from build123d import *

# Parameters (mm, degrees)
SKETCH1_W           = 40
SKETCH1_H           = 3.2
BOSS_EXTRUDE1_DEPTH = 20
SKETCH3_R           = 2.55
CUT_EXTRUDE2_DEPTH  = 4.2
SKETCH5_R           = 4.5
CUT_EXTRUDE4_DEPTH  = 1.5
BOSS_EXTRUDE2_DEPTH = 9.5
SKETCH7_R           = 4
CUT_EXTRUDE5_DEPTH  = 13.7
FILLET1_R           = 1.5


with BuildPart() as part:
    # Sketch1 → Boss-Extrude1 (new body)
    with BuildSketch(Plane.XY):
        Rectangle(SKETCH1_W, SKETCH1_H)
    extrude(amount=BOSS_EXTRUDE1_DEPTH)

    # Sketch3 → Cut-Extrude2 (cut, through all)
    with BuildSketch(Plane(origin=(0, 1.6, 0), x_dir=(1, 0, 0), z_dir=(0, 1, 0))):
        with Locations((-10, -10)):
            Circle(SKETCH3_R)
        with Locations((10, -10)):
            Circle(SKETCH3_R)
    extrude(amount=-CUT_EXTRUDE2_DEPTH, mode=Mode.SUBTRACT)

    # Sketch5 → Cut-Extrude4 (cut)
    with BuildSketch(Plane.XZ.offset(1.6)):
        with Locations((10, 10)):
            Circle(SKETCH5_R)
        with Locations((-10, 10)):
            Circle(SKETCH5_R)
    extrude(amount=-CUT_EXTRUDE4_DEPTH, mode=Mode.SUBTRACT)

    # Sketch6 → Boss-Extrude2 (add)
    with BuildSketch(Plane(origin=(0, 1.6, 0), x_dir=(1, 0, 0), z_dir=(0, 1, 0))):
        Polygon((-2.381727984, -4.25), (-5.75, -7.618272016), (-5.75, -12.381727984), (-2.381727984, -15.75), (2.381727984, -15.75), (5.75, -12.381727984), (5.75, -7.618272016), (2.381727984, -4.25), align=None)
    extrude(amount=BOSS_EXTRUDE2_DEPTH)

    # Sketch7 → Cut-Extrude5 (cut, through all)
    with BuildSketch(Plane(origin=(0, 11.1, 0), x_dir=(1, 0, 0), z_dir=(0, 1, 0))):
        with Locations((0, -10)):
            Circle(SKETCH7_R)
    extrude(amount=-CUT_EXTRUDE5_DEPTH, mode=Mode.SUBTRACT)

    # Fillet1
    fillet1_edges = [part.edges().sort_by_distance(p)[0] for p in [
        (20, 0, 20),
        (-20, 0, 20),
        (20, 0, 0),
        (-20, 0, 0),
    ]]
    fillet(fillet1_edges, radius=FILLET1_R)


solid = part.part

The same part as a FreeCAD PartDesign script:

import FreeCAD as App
import Part
import Sketcher

V = App.Vector


def edges_at(feature, points):
    """Names of the edges that pass closest to the given points."""
    edges = feature.Shape.Edges
    near = lambda p: min(range(len(edges)), key=lambda i: edges[i].distToShape(Part.Vertex(*p))[0])
    return sorted({f"Edge{near(p) + 1}" for p in points})


def add_polygon(sketch, points):
    """Adds a closed chain of lines whose ends are joined by coincident constraints."""
    first, n = sketch.GeometryCount, len(points)
    for a, b in zip(points, points[1:] + points[:1]):
        sketch.addGeometry(Part.LineSegment(App.Vector(*a, 0), App.Vector(*b, 0)), False)
    for i in range(n):
        sketch.addConstraint(Sketcher.Constraint("Coincident", first + i, 2, first + (i + 1) % n, 1))

doc = App.newDocument("Part")
body = doc.addObject("PartDesign::Body", "Body")

# Sketch on XY plane
sketch1 = body.newObject("Sketcher::SketchObject", "Sketch")
sketch1.AttachmentSupport = (doc.getObject("XY_Plane"), [""])
sketch1.MapMode = "FlatFace"
add_polygon(sketch1, [(-20, 1.6), (-20, -1.6), (20, -1.6), (20, 1.6)])  # lines 0-3
sketch1.addConstraint([
    Sketcher.Constraint("Vertical", 0),
    Sketcher.Constraint("Horizontal", 1),
    Sketcher.Constraint("Vertical", 2),
    Sketcher.Constraint("Horizontal", 3),
    Sketcher.Constraint("Symmetric", 0, 2, 2, 2, -1, 1),
    Sketcher.Constraint("DistanceX", 1, 1, 1, 2, 40.0),
    Sketcher.Constraint("DistanceY", 0, 2, 0, 1, 3.2),
])
pad1 = body.newObject("PartDesign::Pad", "Pad")
pad1.Profile = sketch1
pad1.Length = 20

# Sketch on XZ plane
sketch2 = body.newObject("Sketcher::SketchObject", "Sketch001")
sketch2.AttachmentSupport = (doc.getObject("XZ_Plane"), [""])
sketch2.MapMode = "FlatFace"
sketch2.AttachmentOffset = App.Placement(V(0, 0, -1.6), App.Rotation())
sketch2.addGeometry([
    Part.Circle(V(-10, 10, 0), V(0, 0, 1), 2.5),
    Part.Circle(V(10, 10, 0), V(0, 0, 1), 2.5),
], False)
sketch2.addConstraint([
    Sketcher.Constraint("Equal", 0, 1),
    Sketcher.Constraint("Symmetric", 0, 3, 1, 3, -2),
    Sketcher.Constraint("Diameter", 0, 5.1),
    Sketcher.Constraint("DistanceX", 0, 3, -1, 1, 10.0),
    Sketcher.Constraint("DistanceY", -1, 1, 0, 3, 10.0),
])
pocket1 = body.newObject("PartDesign::Pocket", "Pocket")
pocket1.Profile = sketch2
pocket1.Type = "ThroughAll"
pocket1.Reversed = True

# Sketch on XZ plane
sketch3 = body.newObject("Sketcher::SketchObject", "Sketch002")
sketch3.AttachmentSupport = (doc.getObject("XZ_Plane"), [""])
sketch3.MapMode = "FlatFace"
sketch3.AttachmentOffset = App.Placement(V(0, 0, 1.6), App.Rotation())
sketch3.addGeometry([
    Part.Circle(V(10, 10, 0), V(0, 0, 1), 4.5),
    Part.Circle(V(-10, 10, 0), V(0, 0, 1), 4.5),
], False)
sketch3.addConstraint([
    Sketcher.Constraint("Equal", 0, 1),
    Sketcher.Constraint("Symmetric", 0, 3, 1, 3, -2),
    Sketcher.Constraint("Diameter", 0, 9.0),
    Sketcher.Constraint("DistanceX", -1, 1, 0, 3, 10.0),
    Sketcher.Constraint("DistanceY", -1, 1, 0, 3, 10.0),
])
pocket2 = body.newObject("PartDesign::Pocket", "Pocket001")
pocket2.Profile = sketch3
pocket2.Length = 1.5

# Sketch on XZ plane
sketch4 = body.newObject("Sketcher::SketchObject", "Sketch003")
sketch4.AttachmentSupport = (doc.getObject("XZ_Plane"), [""])
sketch4.MapMode = "FlatFace"
sketch4.AttachmentOffset = App.Placement(V(0, 0, -1.6), App.Rotation())
add_polygon(sketch4, [(-2.4, 4.2), (-5.8, 7.6), (-5.8, 12.4), (-2.4, 15.8), (2.4, 15.8), (5.8, 12.4), (5.8, 7.6), (2.4, 4.2)])  # lines 0-7
sketch4.addConstraint([
    Sketcher.Constraint("Vertical", 1),
    Sketcher.Constraint("Horizontal", 3),
    Sketcher.Constraint("Vertical", 5),
    Sketcher.Constraint("Horizontal", 7),
    Sketcher.Constraint("Symmetric", 1, 2, 4, 2, -2),
    Sketcher.Constraint("Perpendicular", 0, 2),
    Sketcher.Constraint("Perpendicular", 2, 4),
    Sketcher.Constraint("Perpendicular", 4, 6),
    Sketcher.Constraint("Horizontal", 0, 2, 5, 2),
    Sketcher.Constraint("Vertical", 3, 2, 6, 2),
    Sketcher.Constraint("Vertical", 2, 2, 7, 2),
    Sketcher.Constraint("Equal", 7, 1),
    Sketcher.Constraint("DistanceX", 1, 2, 4, 2, 11.5),
    Sketcher.Constraint("DistanceY", -1, 1, 2, 2, 15.75),
    Sketcher.Constraint("DistanceX", 3, 1, 3, 2, 4.763456),
])
pad2 = body.newObject("PartDesign::Pad", "Pad001")
pad2.Profile = sketch4
pad2.Length = 9.5
pad2.Reversed = True

# Sketch on XZ plane
sketch5 = body.newObject("Sketcher::SketchObject", "Sketch004")
sketch5.AttachmentSupport = (doc.getObject("XZ_Plane"), [""])
sketch5.MapMode = "FlatFace"
sketch5.AttachmentOffset = App.Placement(V(0, 0, -11.1), App.Rotation())
sketch5.addGeometry(Part.Circle(V(0, 10, 0), V(0, 0, 1), 4), False)
sketch5.addConstraint([
    Sketcher.Constraint("PointOnObject", 0, 3, -2),
    Sketcher.Constraint("Diameter", 0, 8.0),
    Sketcher.Constraint("DistanceY", -1, 1, 0, 3, 10.0),
])
pocket3 = body.newObject("PartDesign::Pocket", "Pocket002")
pocket3.Profile = sketch5
pocket3.Type = "ThroughAll"
pocket3.Reversed = True
doc.recompute()

fillet = body.newObject("PartDesign::Fillet", "Fillet")
fillet.Base = (pocket3, edges_at(pocket3, [
    (20, 0, 20),
    (-20, 0, 20),
    (20, 0, 0),
    (-20, 0, 0),
]))
fillet.Radius = 1.5

doc.recompute()
